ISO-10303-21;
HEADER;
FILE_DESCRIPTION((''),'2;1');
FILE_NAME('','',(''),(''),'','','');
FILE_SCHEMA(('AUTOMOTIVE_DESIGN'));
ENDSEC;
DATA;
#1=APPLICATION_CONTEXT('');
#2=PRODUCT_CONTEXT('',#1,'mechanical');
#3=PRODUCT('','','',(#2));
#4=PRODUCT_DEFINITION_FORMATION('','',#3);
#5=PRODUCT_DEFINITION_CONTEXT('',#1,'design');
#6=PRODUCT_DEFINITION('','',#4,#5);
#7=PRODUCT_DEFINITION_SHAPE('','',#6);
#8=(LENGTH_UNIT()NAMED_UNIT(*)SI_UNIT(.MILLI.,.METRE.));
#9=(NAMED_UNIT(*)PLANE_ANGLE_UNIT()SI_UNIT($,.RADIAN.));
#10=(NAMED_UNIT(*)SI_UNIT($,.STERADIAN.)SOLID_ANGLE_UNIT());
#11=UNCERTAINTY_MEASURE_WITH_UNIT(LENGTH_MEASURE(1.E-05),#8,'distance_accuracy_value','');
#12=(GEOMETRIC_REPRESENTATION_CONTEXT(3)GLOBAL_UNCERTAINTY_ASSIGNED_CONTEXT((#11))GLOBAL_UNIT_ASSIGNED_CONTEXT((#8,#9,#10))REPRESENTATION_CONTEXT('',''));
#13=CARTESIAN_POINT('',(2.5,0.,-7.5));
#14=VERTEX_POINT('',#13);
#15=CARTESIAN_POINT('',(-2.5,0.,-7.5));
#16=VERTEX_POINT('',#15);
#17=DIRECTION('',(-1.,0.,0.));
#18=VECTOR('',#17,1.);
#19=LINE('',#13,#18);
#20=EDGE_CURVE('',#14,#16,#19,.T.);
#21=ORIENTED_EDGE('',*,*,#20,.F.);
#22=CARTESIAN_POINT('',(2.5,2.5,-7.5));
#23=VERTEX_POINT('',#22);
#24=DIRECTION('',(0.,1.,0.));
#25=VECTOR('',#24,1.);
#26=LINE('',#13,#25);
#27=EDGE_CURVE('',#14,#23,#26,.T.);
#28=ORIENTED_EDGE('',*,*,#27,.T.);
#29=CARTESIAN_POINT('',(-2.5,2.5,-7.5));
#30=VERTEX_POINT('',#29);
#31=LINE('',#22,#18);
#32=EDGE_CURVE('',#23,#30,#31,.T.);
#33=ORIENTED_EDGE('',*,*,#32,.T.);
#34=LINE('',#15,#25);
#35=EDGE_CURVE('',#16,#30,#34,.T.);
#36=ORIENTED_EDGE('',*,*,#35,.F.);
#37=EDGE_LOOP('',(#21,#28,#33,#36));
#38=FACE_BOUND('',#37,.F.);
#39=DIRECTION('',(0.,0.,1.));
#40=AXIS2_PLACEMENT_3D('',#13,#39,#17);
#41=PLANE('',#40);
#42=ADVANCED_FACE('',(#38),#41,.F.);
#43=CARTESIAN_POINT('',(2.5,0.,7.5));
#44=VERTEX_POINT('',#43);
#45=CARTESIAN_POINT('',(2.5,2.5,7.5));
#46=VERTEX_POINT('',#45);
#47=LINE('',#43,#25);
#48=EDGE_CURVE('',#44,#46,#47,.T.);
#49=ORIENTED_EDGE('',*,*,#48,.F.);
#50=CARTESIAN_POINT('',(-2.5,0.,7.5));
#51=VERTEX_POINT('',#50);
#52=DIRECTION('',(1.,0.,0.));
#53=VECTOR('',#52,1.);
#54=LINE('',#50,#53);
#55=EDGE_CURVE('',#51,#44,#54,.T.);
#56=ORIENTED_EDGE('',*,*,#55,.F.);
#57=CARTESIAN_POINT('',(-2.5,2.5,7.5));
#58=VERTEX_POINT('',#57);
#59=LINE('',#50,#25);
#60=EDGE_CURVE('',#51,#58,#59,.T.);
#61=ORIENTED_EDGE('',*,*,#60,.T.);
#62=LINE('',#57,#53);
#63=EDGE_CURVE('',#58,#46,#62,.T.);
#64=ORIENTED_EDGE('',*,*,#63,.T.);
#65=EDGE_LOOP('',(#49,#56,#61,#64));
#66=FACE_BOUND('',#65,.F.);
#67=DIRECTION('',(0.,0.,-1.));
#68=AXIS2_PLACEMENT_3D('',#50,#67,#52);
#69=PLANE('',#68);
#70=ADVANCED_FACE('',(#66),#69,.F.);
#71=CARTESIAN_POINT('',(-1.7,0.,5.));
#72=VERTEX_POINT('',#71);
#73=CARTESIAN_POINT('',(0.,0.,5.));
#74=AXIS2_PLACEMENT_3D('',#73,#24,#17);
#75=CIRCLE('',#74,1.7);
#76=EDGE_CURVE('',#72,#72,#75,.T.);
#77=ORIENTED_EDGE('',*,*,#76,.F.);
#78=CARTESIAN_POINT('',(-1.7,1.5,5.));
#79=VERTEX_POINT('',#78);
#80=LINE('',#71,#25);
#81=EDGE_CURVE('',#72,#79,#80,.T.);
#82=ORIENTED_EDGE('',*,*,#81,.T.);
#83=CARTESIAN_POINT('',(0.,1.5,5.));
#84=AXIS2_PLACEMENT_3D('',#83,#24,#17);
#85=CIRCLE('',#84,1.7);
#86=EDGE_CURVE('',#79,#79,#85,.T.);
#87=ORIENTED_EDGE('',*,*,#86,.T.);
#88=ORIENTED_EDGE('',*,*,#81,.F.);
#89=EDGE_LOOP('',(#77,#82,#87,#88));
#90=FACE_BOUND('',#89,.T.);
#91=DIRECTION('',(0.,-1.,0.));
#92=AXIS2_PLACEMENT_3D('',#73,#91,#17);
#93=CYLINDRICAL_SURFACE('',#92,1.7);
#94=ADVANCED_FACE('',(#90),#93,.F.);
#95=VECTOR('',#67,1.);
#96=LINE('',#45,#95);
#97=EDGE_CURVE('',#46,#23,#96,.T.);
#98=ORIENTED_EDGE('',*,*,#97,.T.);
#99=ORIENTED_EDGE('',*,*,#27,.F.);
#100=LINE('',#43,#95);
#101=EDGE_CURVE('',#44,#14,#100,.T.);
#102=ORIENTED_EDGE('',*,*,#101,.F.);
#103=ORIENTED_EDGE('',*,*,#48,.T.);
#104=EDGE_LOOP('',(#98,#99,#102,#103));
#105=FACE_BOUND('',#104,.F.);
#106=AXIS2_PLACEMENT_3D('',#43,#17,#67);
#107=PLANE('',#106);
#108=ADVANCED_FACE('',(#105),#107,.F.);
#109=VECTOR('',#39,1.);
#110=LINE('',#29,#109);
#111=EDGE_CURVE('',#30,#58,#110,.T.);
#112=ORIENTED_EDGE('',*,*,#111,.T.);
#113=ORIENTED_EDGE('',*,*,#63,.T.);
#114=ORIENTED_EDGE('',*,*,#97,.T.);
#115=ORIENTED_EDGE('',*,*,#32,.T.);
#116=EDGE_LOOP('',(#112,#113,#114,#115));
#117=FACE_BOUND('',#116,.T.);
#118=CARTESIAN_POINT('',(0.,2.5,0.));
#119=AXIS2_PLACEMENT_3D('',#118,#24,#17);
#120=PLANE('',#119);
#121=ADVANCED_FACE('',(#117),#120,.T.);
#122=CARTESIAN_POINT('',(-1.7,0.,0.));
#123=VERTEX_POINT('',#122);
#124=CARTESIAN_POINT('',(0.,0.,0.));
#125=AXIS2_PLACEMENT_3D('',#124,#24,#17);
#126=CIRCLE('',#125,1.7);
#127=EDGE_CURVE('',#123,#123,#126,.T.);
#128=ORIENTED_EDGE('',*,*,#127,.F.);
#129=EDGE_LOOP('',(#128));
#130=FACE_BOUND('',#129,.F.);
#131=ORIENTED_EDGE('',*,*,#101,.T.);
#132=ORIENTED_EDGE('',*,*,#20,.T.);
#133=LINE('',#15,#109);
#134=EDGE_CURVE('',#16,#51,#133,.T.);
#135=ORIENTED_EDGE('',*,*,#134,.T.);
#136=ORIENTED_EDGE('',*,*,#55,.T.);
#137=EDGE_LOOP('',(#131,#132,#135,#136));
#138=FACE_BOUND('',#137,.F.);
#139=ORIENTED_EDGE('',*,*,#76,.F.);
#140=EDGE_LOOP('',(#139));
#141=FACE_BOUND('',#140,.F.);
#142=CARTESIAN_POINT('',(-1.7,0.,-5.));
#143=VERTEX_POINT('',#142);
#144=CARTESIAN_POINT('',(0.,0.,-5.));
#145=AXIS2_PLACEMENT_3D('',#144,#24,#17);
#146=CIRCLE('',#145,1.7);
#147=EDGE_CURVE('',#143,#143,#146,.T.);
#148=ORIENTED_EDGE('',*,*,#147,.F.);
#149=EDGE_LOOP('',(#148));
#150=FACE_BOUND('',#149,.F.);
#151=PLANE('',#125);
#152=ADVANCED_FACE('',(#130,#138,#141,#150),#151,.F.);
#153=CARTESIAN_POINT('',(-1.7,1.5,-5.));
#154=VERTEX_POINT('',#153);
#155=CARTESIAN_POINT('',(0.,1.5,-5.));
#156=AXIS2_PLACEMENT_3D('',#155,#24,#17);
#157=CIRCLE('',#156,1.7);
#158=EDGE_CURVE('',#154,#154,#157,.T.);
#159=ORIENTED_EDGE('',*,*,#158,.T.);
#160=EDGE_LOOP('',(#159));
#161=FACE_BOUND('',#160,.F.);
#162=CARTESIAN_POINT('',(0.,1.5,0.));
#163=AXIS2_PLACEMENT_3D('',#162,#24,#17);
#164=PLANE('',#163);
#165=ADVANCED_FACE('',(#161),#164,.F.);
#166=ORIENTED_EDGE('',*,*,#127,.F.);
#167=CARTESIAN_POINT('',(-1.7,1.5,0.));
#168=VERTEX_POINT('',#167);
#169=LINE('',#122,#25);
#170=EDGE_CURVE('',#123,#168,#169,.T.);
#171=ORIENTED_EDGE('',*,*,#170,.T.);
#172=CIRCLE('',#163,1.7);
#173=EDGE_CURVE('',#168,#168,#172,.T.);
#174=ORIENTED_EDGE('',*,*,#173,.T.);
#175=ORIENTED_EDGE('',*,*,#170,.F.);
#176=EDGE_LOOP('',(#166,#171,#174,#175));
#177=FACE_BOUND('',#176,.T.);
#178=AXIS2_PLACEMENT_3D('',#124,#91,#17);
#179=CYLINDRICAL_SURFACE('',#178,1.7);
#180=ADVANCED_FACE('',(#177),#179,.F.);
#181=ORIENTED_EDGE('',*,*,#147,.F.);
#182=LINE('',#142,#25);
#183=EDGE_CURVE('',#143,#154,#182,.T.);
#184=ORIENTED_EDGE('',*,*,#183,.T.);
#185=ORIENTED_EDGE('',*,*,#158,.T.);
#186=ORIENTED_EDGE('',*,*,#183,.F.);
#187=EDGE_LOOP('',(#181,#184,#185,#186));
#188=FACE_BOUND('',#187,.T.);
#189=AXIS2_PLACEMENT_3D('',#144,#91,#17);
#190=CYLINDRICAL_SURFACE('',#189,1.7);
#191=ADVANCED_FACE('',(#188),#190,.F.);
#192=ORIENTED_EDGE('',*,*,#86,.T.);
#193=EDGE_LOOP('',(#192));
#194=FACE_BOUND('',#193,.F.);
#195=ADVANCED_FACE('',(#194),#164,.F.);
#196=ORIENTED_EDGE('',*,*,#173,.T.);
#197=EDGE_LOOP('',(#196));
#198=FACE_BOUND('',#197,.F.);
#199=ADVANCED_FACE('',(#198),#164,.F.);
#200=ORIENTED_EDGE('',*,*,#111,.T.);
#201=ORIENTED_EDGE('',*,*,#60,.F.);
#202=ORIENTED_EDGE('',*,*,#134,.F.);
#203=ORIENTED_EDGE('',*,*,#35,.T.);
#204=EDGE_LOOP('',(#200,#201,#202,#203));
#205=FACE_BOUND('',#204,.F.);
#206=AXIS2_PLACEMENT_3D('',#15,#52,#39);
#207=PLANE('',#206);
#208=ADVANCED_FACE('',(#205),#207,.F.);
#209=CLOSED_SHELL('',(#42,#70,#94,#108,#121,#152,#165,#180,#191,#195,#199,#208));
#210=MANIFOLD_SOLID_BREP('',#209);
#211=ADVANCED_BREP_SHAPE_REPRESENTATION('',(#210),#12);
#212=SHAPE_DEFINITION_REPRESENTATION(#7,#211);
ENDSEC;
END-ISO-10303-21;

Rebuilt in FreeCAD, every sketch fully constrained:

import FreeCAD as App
import Part
import Sketcher
from FreeCAD import Vector
Q = App.Units.Quantity


def add_polygon(sketch, points):
    """Adds a closed chain of lines whose ends are joined by coincident constraints."""
    first, n = sketch.GeometryCount, len(points)
    for a, b in zip(points, points[1:] + points[:1]):
        sketch.addGeometry(Part.LineSegment(App.Vector(*a, 0), App.Vector(*b, 0)), False)
    for i in range(n):
        sketch.addConstraint(Sketcher.Constraint("Coincident", first + i, 2, first + (i + 1) % n, 1))

doc = App.newDocument("Part")
body = doc.addObject("PartDesign::Body", "Body")

# Sketch on XZ plane
sketch1 = body.newObject("Sketcher::SketchObject", "Sketch")
sketch1.AttachmentSupport = (doc.getObject("XZ_Plane"), [""])
sketch1.MapMode = "FlatFace"
add_polygon(sketch1, [(-2, -8), (-2, 8), (2, 8), (2, -8)])  # lines 0-3
sketch1.addConstraint(Sketcher.Constraint("Vertical", 0))
sketch1.addConstraint(Sketcher.Constraint("Horizontal", 1))
sketch1.addConstraint(Sketcher.Constraint("Vertical", 2))
sketch1.addConstraint(Sketcher.Constraint("Horizontal", 3))
sketch1.addConstraint(Sketcher.Constraint("Symmetric", 0, 2, 2, 2, -1, 1))
sketch1.addConstraint(Sketcher.Constraint("DistanceX", 1, 1, 1, 2, Q("5 mm")))
sketch1.addConstraint(Sketcher.Constraint("DistanceY", 0, 1, 0, 2, Q("15 mm")))
pad1 = body.newObject("PartDesign::Pad", "Pad")
pad1.Profile = sketch1
pad1.Length = 2.5
pad1.Reversed = True

# Sketch on XZ plane
sketch2 = body.newObject("Sketcher::SketchObject", "Sketch001")
sketch2.AttachmentSupport = (doc.getObject("XZ_Plane"), [""])
sketch2.MapMode = "FlatFace"
sketch2.addGeometry(Part.Circle(Vector(0, 5, 0), Vector(0, 0, 1), 1.7), False)
sketch2.addGeometry(Part.Circle(Vector(0, 0, 0), Vector(0, 0, 1), 1.7), False)
sketch2.addGeometry(Part.Circle(Vector(0, -5, 0), Vector(0, 0, 1), 1.7), False)
sketch2.addConstraint(Sketcher.Constraint("Coincident", 1, 3, -1, 1))
sketch2.addConstraint(Sketcher.Constraint("Equal", 0, 1))
sketch2.addConstraint(Sketcher.Constraint("Equal", 1, 2))
sketch2.addConstraint(Sketcher.Constraint("Symmetric", 0, 3, 2, 3, -1, 1))
sketch2.addConstraint(Sketcher.Constraint("PointOnObject", 0, 3, -2))
sketch2.addConstraint(Sketcher.Constraint("Diameter", 0, Q("3.4 mm")))
sketch2.addConstraint(Sketcher.Constraint("DistanceY", -1, 1, 0, 3, Q("5 mm")))
pocket1 = body.newObject("PartDesign::Pocket", "Pocket")
pocket1.Profile = sketch2
pocket1.Length = 1.5

doc.recompute()
